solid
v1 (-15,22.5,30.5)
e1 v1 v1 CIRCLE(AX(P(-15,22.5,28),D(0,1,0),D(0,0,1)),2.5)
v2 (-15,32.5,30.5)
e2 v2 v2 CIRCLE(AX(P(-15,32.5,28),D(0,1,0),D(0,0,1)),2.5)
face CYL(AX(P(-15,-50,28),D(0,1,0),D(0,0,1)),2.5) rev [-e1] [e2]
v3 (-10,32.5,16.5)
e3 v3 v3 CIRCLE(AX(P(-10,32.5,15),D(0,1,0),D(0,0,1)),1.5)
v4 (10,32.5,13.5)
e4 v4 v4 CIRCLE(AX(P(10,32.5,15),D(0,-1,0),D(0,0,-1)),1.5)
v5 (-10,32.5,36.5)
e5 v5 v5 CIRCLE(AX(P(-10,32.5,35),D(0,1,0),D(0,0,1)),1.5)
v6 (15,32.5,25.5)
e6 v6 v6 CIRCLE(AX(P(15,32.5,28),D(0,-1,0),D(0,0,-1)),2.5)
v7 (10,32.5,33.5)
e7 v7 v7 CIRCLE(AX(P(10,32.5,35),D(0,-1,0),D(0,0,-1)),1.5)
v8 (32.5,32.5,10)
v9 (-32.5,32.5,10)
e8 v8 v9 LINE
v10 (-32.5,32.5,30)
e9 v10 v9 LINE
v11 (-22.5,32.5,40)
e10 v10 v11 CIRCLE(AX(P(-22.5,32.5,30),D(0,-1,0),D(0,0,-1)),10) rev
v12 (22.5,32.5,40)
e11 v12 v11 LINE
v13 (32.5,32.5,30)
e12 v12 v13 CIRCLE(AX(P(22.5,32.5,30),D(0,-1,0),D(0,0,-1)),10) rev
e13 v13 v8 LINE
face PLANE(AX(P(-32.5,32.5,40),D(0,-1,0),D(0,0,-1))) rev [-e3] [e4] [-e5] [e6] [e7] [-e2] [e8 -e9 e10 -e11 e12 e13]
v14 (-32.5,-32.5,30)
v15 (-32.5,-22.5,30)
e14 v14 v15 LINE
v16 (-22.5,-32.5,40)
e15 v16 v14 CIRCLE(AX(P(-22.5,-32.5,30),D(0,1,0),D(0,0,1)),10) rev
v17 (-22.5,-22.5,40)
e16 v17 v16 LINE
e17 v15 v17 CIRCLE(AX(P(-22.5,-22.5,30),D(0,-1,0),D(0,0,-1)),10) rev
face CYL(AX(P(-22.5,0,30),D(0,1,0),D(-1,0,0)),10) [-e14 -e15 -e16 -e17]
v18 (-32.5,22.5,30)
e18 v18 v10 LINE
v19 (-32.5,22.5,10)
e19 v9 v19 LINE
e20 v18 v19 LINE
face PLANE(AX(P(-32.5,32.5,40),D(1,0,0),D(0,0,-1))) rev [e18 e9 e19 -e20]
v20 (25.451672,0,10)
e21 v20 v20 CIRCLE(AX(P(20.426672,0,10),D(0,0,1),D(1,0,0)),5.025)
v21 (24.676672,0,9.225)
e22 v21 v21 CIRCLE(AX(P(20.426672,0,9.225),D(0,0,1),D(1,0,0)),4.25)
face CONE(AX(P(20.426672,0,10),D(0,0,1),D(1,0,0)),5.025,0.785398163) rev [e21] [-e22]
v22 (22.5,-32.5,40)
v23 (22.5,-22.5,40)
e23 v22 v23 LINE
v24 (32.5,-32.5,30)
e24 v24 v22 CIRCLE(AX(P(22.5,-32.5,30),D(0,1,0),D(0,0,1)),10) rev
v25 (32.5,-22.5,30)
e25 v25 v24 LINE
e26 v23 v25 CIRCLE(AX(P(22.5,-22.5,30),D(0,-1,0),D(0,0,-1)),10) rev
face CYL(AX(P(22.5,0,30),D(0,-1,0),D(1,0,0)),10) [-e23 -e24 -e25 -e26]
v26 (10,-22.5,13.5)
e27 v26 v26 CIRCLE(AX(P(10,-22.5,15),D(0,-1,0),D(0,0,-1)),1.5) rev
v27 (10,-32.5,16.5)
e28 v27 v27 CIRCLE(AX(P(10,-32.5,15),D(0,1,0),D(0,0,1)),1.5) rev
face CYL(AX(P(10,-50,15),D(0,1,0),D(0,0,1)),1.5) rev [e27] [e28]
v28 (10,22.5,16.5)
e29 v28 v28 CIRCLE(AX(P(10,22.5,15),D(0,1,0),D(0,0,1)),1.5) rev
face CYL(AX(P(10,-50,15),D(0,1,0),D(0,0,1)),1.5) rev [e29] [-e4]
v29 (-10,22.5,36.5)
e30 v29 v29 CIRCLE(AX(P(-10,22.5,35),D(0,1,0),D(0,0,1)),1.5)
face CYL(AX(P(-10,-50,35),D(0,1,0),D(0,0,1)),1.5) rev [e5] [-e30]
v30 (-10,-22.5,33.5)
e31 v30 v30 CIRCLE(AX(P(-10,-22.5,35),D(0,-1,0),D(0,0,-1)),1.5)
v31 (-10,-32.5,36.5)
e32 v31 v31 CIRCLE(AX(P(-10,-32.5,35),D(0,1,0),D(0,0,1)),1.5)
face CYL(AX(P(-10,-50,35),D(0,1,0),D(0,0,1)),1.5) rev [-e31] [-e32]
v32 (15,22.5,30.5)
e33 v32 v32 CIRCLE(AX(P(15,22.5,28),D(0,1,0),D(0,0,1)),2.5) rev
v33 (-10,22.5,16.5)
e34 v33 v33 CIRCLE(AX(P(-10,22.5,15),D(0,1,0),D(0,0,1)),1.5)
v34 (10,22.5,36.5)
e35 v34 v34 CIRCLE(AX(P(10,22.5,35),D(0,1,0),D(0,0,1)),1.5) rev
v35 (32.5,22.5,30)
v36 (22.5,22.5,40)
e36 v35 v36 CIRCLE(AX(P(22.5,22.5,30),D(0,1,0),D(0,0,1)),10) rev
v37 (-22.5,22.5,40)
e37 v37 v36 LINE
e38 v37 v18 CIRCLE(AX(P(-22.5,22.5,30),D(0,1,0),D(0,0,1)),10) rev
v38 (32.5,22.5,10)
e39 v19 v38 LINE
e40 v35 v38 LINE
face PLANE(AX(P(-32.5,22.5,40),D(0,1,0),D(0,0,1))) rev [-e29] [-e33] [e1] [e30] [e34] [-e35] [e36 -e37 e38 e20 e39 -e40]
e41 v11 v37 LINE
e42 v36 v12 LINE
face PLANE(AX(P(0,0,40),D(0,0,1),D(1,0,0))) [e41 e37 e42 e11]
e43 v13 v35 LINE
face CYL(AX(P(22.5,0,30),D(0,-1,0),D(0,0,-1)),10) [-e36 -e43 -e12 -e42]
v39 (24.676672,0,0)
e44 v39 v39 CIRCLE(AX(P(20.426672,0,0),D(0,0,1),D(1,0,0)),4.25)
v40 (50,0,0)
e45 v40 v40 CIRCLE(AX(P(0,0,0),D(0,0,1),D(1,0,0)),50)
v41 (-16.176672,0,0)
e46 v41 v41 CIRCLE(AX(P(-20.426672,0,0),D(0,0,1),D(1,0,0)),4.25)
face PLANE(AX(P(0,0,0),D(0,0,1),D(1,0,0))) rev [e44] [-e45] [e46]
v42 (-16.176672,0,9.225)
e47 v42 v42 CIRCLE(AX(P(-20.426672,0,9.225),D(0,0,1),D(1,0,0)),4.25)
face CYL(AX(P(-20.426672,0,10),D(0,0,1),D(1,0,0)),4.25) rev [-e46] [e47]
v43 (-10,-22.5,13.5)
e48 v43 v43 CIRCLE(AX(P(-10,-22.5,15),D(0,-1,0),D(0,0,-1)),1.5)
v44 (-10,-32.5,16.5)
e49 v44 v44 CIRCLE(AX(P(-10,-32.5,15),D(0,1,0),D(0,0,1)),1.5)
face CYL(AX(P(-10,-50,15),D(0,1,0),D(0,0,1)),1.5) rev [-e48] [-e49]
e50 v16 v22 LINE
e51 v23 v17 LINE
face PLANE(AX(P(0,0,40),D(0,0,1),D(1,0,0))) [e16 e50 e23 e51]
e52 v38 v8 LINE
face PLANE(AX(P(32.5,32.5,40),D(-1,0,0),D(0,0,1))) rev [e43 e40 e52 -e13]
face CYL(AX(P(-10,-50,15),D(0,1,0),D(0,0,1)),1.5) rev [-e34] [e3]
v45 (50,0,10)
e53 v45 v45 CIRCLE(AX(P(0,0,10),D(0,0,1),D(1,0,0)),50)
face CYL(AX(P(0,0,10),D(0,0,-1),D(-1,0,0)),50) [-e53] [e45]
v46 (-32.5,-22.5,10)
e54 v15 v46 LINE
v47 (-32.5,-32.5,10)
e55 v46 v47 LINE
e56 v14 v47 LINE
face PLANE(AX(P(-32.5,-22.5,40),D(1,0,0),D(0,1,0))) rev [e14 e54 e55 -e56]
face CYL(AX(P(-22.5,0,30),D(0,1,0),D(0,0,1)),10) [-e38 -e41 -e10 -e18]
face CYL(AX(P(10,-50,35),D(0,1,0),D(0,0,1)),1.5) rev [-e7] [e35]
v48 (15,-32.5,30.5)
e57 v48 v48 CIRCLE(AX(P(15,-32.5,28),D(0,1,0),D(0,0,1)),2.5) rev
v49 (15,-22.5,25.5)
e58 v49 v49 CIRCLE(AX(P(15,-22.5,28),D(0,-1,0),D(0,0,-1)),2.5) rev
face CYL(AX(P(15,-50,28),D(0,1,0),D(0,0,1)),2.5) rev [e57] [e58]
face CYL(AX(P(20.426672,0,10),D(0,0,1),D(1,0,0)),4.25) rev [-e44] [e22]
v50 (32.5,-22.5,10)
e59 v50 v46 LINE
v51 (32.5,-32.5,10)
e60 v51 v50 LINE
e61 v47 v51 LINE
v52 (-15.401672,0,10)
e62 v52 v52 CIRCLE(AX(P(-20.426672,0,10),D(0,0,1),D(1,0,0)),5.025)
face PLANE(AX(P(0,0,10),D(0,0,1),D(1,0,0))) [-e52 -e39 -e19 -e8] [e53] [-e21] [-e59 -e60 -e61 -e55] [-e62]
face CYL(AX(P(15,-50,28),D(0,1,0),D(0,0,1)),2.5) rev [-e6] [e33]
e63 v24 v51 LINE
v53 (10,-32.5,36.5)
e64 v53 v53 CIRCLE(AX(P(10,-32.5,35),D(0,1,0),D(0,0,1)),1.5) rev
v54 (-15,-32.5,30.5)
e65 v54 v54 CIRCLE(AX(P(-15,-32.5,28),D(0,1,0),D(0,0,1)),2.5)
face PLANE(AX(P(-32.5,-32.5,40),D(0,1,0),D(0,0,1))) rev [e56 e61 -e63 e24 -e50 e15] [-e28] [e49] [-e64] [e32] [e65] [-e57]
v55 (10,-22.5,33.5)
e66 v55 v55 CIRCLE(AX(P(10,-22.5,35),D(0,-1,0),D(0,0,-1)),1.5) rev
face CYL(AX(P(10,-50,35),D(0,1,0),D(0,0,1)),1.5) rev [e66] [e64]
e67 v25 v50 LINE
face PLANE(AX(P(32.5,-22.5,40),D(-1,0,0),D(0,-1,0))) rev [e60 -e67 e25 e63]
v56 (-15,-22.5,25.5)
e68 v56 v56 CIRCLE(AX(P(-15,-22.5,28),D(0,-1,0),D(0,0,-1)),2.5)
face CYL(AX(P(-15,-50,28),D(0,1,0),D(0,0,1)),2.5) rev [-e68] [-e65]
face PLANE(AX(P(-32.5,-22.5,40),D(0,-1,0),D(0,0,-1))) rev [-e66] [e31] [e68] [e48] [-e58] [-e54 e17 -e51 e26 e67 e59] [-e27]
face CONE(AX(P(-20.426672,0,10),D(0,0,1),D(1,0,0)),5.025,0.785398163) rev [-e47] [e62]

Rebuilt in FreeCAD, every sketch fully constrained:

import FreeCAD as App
import Part
import Sketcher


def edges_at(feature, points):
    """Names of the edges that pass closest to the given points."""
    edges = feature.Shape.Edges
    near = lambda p: min(range(len(edges)), key=lambda i: edges[i].distToShape(Part.Vertex(*p))[0])
    return sorted({f"Edge{near(p) + 1}" for p in points})

doc = App.newDocument("Part")
params = doc.addObject("Spreadsheet::Sheet", "Params")
for row, (alias, value) in enumerate([
    ("sketch1_diameter", "100 mm"),
    ("pad1_length", "10 mm"),
    ("sketch2_diameter", "8.5 mm"),
    ("hole_diameter", "8.5 mm"),
    ("hole_csink_diameter", "10.05 mm"),
    ("sketch3_width", "65 mm"),
    ("sketch3_height", "10 mm"),
    ("pad2_length", "30 mm"),
    ("fillet_radius", "10 mm"),
    ("sketch4_diameter", "5 mm"),
    ("sketch4_diameter2", "3 mm"),
], start=1):
    params.set(f"A{row}", alias)
    params.set(f"B{row}", "=" + value)
    params.setAlias(f"B{row}", alias)

body = doc.addObject("PartDesign::Body", "Body")

# Sketch on XY plane
sketch1 = body.newObject("Sketcher::SketchObject", "Sketch")
sketch1.AttachmentSupport = (doc.getObject("XY_Plane"), [""])
sketch1.MapMode = "FlatFace"
sketch1.addGeometry(Part.Circle(App.Vector(0, 0, 0), App.Vector(0, 0, 1), 50), False)
sketch1.addConstraint([
    Sketcher.Constraint("Coincident", 0, 3, -1, 1),
    Sketcher.Constraint("Diameter", 0, 100.0),
])
sketch1.setExpression("Constraints[1]", "Params.sketch1_diameter")
pad1 = body.newObject("PartDesign::Pad", "Pad")
pad1.Profile = sketch1
pad1.setExpression("Length", "Params.pad1_length")

# Sketch on XY plane
sketch2 = body.newObject("Sketcher::SketchObject", "Sketch001")
sketch2.AttachmentSupport = (doc.getObject("XY_Plane"), [""])
sketch2.MapMode = "FlatFace"
sketch2.AttachmentOffset = App.Placement(App.Vector(0, 0, 10), App.Rotation())
sketch2.addGeometry(Part.Circle(App.Vector(-20.4, 0, 0), App.Vector(0, 0, 1), 4.2), False)
sketch2.addConstraint([
    Sketcher.Constraint("PointOnObject", 0, 3, -1),
    Sketcher.Constraint("Diameter", 0, 8.5),
    Sketcher.Constraint("DistanceX", 0, 3, -1, 1, 20.426672),
])
sketch2.setExpression("Constraints[1]", "Params.sketch2_diameter")
doc.recompute()
hole = body.newObject("PartDesign::Hole", "Hole")
hole.Profile = sketch2
hole.ThreadType = "None"
hole.setExpression("Diameter", "Params.hole_diameter")
hole.DepthType = "ThroughAll"
hole.HoleCutType = "Countersink"
hole.setExpression("HoleCutDiameter", "Params.hole_csink_diameter")
hole.HoleCutCountersinkAngle = 90
doc.recompute()

mirrored = body.newObject("PartDesign::Mirrored", "Mirrored")
mirrored.Originals = [hole]
mirrored.MirrorPlane = (doc.getObject("YZ_Plane"), [""])
body.Tip = mirrored

# Sketch on XY plane
sketch3 = body.newObject("Sketcher::SketchObject", "Sketch002")
sketch3.AttachmentSupport = (doc.getObject("XY_Plane"), [""])
sketch3.MapMode = "FlatFace"
sketch3.AttachmentOffset = App.Placement(App.Vector(0, 0, 10), App.Rotation())
sketch3.addGeometry([
    Part.LineSegment(App.Vector(-32, 32, 0), App.Vector(-32, 22, 0)),  # 0
    Part.LineSegment(App.Vector(-32, 22, 0), App.Vector(32, 22, 0)),  # 1
    Part.LineSegment(App.Vector(32, 22, 0), App.Vector(32, 32, 0)),  # 2
    Part.LineSegment(App.Vector(32, 32, 0), App.Vector(-32, 32, 0)),  # 3
    Part.LineSegment(App.Vector(-32, -22, 0), App.Vector(-32, -32, 0)),  # 4
    Part.LineSegment(App.Vector(-32, -32, 0), App.Vector(32, -32, 0)),  # 5
    Part.LineSegment(App.Vector(32, -32, 0), App.Vector(32, -22, 0)),  # 6
    Part.LineSegment(App.Vector(32, -22, 0), App.Vector(-32, -22, 0)),  # 7
], False)
sketch3.addConstraint([
    Sketcher.Constraint("Coincident", 0, 2, 1, 1),
    Sketcher.Constraint("Coincident", 1, 2, 2, 1),
    Sketcher.Constraint("Coincident", 2, 2, 3, 1),
    Sketcher.Constraint("Coincident", 3, 2, 0, 1),
    Sketcher.Constraint("Coincident", 4, 2, 5, 1),
    Sketcher.Constraint("Coincident", 5, 2, 6, 1),
    Sketcher.Constraint("Coincident", 6, 2, 7, 1),
    Sketcher.Constraint("Coincident", 7, 2, 4, 1),
    Sketcher.Constraint("Vertical", 0),
    Sketcher.Constraint("Horizontal", 1),
    Sketcher.Constraint("Vertical", 2),
    Sketcher.Constraint("Horizontal", 3),
    Sketcher.Constraint("Vertical", 4),
    Sketcher.Constraint("Horizontal", 5),
    Sketcher.Constraint("Vertical", 6),
    Sketcher.Constraint("Horizontal", 7),
    Sketcher.Constraint("Symmetric", 2, 2, 4, 2, -1, 1),
    Sketcher.Constraint("Symmetric", 0, 2, 6, 2, -1, 1),
    Sketcher.Constraint("Vertical", 3, 2, 4, 2),
    Sketcher.Constraint("DistanceX", 1, 1, 1, 2, 65.0),
    Sketcher.Constraint("DistanceY", 0, 2, 0, 1, 10.0),
    Sketcher.Constraint("DistanceY", 4, 2, 0, 2, 55.0),
])
sketch3.setExpression("Constraints[19]", "Params.sketch3_width")
sketch3.setExpression("Constraints[20]", "Params.sketch3_height")
pad2 = body.newObject("PartDesign::Pad", "Pad001")
pad2.Profile = sketch3
pad2.setExpression("Length", "Params.pad2_length")
doc.recompute()

fillet = body.newObject("PartDesign::Fillet", "Fillet")
fillet.Base = (pad2, edges_at(pad2, [
    (32.5, -27.5, 40),
    (-32.5, -27.5, 40),
    (-32.5, 27.5, 40),
    (32.5, 27.5, 40),
]))
fillet.setExpression("Radius", "Params.fillet_radius")

# Sketch on XZ plane
sketch4 = body.newObject("Sketcher::SketchObject", "Sketch003")
sketch4.AttachmentSupport = (doc.getObject("XZ_Plane"), [""])
sketch4.MapMode = "FlatFace"
sketch4.AttachmentOffset = App.Placement(App.Vector(0, 0, -32.5), App.Rotation())
sketch4.addGeometry([
    Part.Circle(App.Vector(-15, 28, 0), App.Vector(0, 0, 1), 2.5),  # 0
    Part.Circle(App.Vector(10, 15, 0), App.Vector(0, 0, 1), 1.5),  # 1
    Part.Circle(App.Vector(15, 28, 0), App.Vector(0, 0, 1), 2.5),  # 2
    Part.Circle(App.Vector(10, 35, 0), App.Vector(0, 0, 1), 1.5),  # 3
    Part.Circle(App.Vector(-10, 15, 0), App.Vector(0, 0, 1), 1.5),  # 4
    Part.Circle(App.Vector(-10, 35, 0), App.Vector(0, 0, 1), 1.5),  # 5
], False)
sketch4.addConstraint([
    Sketcher.Constraint("Equal", 0, 2),
    Sketcher.Constraint("Equal", 1, 3),
    Sketcher.Constraint("Equal", 3, 4),
    Sketcher.Constraint("Equal", 4, 5),
    Sketcher.Constraint("Symmetric", 0, 3, 2, 3, -2),
    Sketcher.Constraint("Symmetric", 1, 3, 4, 3, -2),
    Sketcher.Constraint("Symmetric", 3, 3, 5, 3, -2),
    Sketcher.Constraint("Vertical", 1, 3, 3, 3),
    Sketcher.Constraint("Diameter", 0, 5.0),
    Sketcher.Constraint("Diameter", 1, 3.0),
    Sketcher.Constraint("DistanceX", 0, 3, -1, 1, 15.0),
    Sketcher.Constraint("DistanceY", -1, 1, 0, 3, 28.0),
    Sketcher.Constraint("DistanceX", -1, 1, 1, 3, 10.0),
    Sketcher.Constraint("DistanceY", -1, 1, 1, 3, 15.0),
    Sketcher.Constraint("DistanceY", -1, 1, 3, 3, 35.0),
])
sketch4.setExpression("Constraints[8]", "Params.sketch4_diameter")
sketch4.setExpression("Constraints[9]", "Params.sketch4_diameter2")
pocket1 = body.newObject("PartDesign::Pocket", "Pocket")
pocket1.Profile = sketch4
pocket1.Type = "ThroughAll"
pocket1.Reversed = True

doc.recompute()
